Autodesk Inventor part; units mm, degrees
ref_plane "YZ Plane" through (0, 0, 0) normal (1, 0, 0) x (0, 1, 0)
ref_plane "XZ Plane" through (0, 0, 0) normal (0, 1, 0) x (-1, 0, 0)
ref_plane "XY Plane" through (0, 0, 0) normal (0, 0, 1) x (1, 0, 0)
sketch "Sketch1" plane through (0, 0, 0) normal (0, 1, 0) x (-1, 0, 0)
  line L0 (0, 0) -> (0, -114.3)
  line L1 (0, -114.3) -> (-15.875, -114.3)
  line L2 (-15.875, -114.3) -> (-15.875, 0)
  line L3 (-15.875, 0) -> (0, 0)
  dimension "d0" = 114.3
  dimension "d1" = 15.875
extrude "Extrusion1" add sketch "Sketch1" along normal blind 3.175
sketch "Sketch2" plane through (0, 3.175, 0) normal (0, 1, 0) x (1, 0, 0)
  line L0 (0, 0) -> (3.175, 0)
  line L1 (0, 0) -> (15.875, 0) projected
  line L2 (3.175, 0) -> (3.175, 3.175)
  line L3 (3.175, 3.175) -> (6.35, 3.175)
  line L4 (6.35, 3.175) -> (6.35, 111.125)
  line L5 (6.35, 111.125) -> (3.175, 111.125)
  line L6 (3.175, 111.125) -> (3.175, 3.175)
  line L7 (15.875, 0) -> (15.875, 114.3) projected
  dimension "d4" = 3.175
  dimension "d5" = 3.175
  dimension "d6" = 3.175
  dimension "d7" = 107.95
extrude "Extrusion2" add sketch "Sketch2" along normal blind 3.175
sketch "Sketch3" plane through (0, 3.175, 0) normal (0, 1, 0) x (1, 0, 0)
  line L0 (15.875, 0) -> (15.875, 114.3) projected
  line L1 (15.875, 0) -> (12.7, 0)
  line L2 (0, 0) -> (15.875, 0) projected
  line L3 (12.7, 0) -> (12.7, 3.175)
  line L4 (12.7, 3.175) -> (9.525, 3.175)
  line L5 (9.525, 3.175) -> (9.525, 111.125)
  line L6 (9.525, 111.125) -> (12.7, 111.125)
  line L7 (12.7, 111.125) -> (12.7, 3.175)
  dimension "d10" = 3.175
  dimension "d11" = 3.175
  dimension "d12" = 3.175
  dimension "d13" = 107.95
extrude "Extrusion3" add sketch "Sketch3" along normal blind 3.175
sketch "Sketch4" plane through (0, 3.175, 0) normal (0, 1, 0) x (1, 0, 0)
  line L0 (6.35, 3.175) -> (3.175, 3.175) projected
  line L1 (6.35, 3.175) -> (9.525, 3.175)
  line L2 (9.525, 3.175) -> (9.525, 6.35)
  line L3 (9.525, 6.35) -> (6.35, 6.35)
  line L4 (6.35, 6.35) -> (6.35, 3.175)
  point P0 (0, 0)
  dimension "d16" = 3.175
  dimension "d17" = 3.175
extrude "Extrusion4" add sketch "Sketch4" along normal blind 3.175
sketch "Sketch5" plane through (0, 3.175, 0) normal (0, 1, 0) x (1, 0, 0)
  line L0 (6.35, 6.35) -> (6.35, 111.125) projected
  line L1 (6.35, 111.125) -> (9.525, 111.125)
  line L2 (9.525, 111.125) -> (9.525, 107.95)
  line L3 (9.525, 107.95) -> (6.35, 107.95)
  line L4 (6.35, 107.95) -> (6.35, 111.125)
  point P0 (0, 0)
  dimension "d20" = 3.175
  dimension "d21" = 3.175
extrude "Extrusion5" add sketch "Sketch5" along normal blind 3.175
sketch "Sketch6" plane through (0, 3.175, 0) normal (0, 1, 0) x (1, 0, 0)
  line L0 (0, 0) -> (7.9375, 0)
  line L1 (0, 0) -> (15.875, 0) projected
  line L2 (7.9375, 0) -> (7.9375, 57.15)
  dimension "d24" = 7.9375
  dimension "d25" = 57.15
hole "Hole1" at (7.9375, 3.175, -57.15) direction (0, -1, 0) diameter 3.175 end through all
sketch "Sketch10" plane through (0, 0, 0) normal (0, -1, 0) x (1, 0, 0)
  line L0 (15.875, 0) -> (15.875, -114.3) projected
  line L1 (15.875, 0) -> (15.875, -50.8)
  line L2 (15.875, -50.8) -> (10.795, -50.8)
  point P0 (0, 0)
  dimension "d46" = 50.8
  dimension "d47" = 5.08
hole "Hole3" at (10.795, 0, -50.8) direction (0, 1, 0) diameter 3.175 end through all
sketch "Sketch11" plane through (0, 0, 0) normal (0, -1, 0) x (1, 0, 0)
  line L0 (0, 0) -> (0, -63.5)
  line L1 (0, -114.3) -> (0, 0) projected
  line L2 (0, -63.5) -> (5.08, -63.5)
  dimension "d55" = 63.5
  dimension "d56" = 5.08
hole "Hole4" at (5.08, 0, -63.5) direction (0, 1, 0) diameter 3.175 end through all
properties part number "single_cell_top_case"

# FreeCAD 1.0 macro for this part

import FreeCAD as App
import Part
import Sketcher
Q = App.Units.Quantity


def add_polygon(sketch, points):
    """Adds a closed chain of lines whose ends are joined by coincident constraints."""
    first, n = sketch.GeometryCount, len(points)
    for a, b in zip(points, points[1:] + points[:1]):
        sketch.addGeometry(Part.LineSegment(App.Vector(*a, 0), App.Vector(*b, 0)), False)
    for i in range(n):
        sketch.addConstraint(Sketcher.Constraint("Coincident", first + i, 2, first + (i + 1) % n, 1))

doc = App.newDocument("Part")
body = doc.addObject("PartDesign::Body", "Body")

sketch1 = body.newObject("Sketcher::SketchObject", "Sketch")
sketch1.AttachmentSupport = (doc.getObject("XZ_Plane"), [""])
sketch1.MapMode = "FlatFace"
add_polygon(sketch1, [(0, -114), (0, 0), (16, 0), (16, -114)])
sketch1.addConstraint([
    Sketcher.Constraint("Vertical", 0),
    Sketcher.Constraint("Horizontal", 1),
    Sketcher.Constraint("Vertical", 2),
    Sketcher.Constraint("Horizontal", 3),
    Sketcher.Constraint("Coincident", 0, 2, -1, 1),
    Sketcher.Constraint("DistanceY", 0, 1, 0, 2, Q("4.5 in")),
    Sketcher.Constraint("DistanceX", 1, 1, 1, 2, Q("0.625 in")),
])
pad1 = body.newObject("PartDesign::Pad", "Pad")
pad1.Profile = sketch1
pad1.Length = Q("0.125 in")
pad1.Reversed = True

sketch2 = body.newObject("Sketcher::SketchObject", "Sketch001")
sketch2.AttachmentSupport = (doc.getObject("XZ_Plane"), [""])
sketch2.MapMode = "FlatFace"
sketch2.AttachmentOffset = App.Placement(App.Vector(0, 0, -0.125 * 25.4), App.Rotation())
add_polygon(sketch2, [(3.2, -111.1), (3.2, -3.2), (6.3, -3.2), (6.3, -111.1)])
sketch2.addConstraint([
    Sketcher.Constraint("Vertical", 0),
    Sketcher.Constraint("Horizontal", 1),
    Sketcher.Constraint("Vertical", 2),
    Sketcher.Constraint("Horizontal", 3),
    Sketcher.Constraint("DistanceY", 0, 1, 0, 2, Q("4.25 in")),
    Sketcher.Constraint("DistanceX", 1, 1, 1, 2, Q("0.125 in")),
    Sketcher.Constraint("DistanceX", -1, 1, 0, 2, Q("0.125 in")),
    Sketcher.Constraint("DistanceY", 0, 2, -1, 1, Q("0.125 in")),
])
pad2 = body.newObject("PartDesign::Pad", "Pad001")
pad2.Profile = sketch2
pad2.Length = Q("0.125 in")
pad2.Reversed = True

sketch3 = body.newObject("Sketcher::SketchObject", "Sketch002")
sketch3.AttachmentSupport = (doc.getObject("XZ_Plane"), [""])
sketch3.MapMode = "FlatFace"
sketch3.AttachmentOffset = App.Placement(App.Vector(0, 0, -0.125 * 25.4), App.Rotation())
add_polygon(sketch3, [(9.5, -3.2), (12.7, -3.2), (12.7, -111.1), (9.5, -111.1)])
sketch3.addConstraint([
    Sketcher.Constraint("Horizontal", 0),
    Sketcher.Constraint("Vertical", 1),
    Sketcher.Constraint("Horizontal", 2),
    Sketcher.Constraint("Vertical", 3),
    Sketcher.Constraint("DistanceY", 1, 2, 1, 1, Q("4.25 in")),
    Sketcher.Constraint("DistanceX", 0, 1, 0, 2, Q("0.125 in")),
    Sketcher.Constraint("DistanceY", 0, 2, -1, 1, Q("0.125 in")),
    Sketcher.Constraint("DistanceX", -1, 1, 0, 2, Q("0.5 in")),
])
pad3 = body.newObject("PartDesign::Pad", "Pad002")
pad3.Profile = sketch3
pad3.Length = Q("0.125 in")
pad3.Reversed = True

sketch4 = body.newObject("Sketcher::SketchObject", "Sketch003")
sketch4.AttachmentSupport = (doc.getObject("XZ_Plane"), [""])
sketch4.MapMode = "FlatFace"
sketch4.AttachmentOffset = App.Placement(App.Vector(0, 0, -0.125 * 25.4), App.Rotation())
add_polygon(sketch4, [(6.3, -6.3), (6.3, -3.2), (9.5, -3.2), (9.5, -6.3)])
sketch4.addConstraint([
    Sketcher.Constraint("Vertical", 0),
    Sketcher.Constraint("Horizontal", 1),
    Sketcher.Constraint("Vertical", 2),
    Sketcher.Constraint("Horizontal", 3),
    Sketcher.Constraint("Equal", 3, 0),
    Sketcher.Constraint("DistanceX", 1, 1, 1, 2, Q("0.125 in")),
    Sketcher.Constraint("DistanceY", 0, 2, -1, 1, Q("0.125 in")),
    Sketcher.Constraint("DistanceX", -1, 1, 0, 2, Q("0.25 in")),
])
pad4 = body.newObject("PartDesign::Pad", "Pad003")
pad4.Profile = sketch4
pad4.Length = Q("0.125 in")
pad4.Reversed = True

sketch5 = body.newObject("Sketcher::SketchObject", "Sketch004")
sketch5.AttachmentSupport = (doc.getObject("XZ_Plane"), [""])
sketch5.MapMode = "FlatFace"
sketch5.AttachmentOffset = App.Placement(App.Vector(0, 0, -0.125 * 25.4), App.Rotation())
add_polygon(sketch5, [(6.3, -111.1), (6.3, -108), (9.5, -108), (9.5, -111.1)])
sketch5.addConstraint([
    Sketcher.Constraint("Vertical", 0),
    Sketcher.Constraint("Horizontal", 1),
    Sketcher.Constraint("Vertical", 2),
    Sketcher.Constraint("Horizontal", 3),
    Sketcher.Constraint("Equal", 3, 0),
    Sketcher.Constraint("DistanceX", 1, 1, 1, 2, Q("0.125 in")),
    Sketcher.Constraint("DistanceX", -1, 1, 0, 2, Q("0.25 in")),
    Sketcher.Constraint("DistanceY", 0, 2, -1, 1, Q("4.25 in")),
])
pad5 = body.newObject("PartDesign::Pad", "Pad004")
pad5.Profile = sketch5
pad5.Length = Q("0.125 in")
pad5.Reversed = True

sketch6 = body.newObject("Sketcher::SketchObject", "Sketch005")
sketch6.AttachmentSupport = (doc.getObject("XZ_Plane"), [""])
sketch6.MapMode = "FlatFace"
sketch6.AttachmentOffset = App.Placement(App.Vector(0, 0, -0.125 * 25.4), App.Rotation())
sketch6.addGeometry(Part.Circle(App.Vector(7.9, -57.1, 0), App.Vector(0, 0, 1), 1.6), False)
sketch6.addConstraint([
    Sketcher.Constraint("Diameter", 0, Q("0.125 in")),
    Sketcher.Constraint("DistanceY", 0, 3, -1, 1, Q("2.25 in")),
    Sketcher.Constraint("DistanceX", -1, 1, 0, 3, Q("0.3125 in")),
])
doc.recompute()
hole = body.newObject("PartDesign::Hole", "Hole")
hole.Profile = sketch6
hole.ThreadType = "None"
hole.Diameter = Q("0.125 in")
hole.DepthType = "ThroughAll"
hole.Reversed = True

sketch7 = body.newObject("Sketcher::SketchObject", "Sketch006")
sketch7.AttachmentSupport = (doc.getObject("XZ_Plane"), [""])
sketch7.MapMode = "FlatFace"
sketch7.addGeometry(Part.Circle(App.Vector(10.8, -50.8, 0), App.Vector(0, 0, 1), 1.6), False)
sketch7.addConstraint([
    Sketcher.Constraint("Diameter", 0, Q("0.125 in")),
    Sketcher.Constraint("DistanceY", 0, 3, -1, 1, Q("2 in")),
    Sketcher.Constraint("DistanceX", -1, 1, 0, 3, Q("0.425 in")),
])
doc.recompute()
hole2 = body.newObject("PartDesign::Hole", "Hole001")
hole2.Profile = sketch7
hole2.ThreadType = "None"
hole2.Diameter = Q("0.125 in")
hole2.DepthType = "ThroughAll"

sketch8 = body.newObject("Sketcher::SketchObject", "Sketch007")
sketch8.AttachmentSupport = (doc.getObject("XZ_Plane"), [""])
sketch8.MapMode = "FlatFace"
sketch8.addGeometry(Part.Circle(App.Vector(5.1, -63.5, 0), App.Vector(0, 0, 1), 1.6), False)
sketch8.addConstraint([
    Sketcher.Constraint("Diameter", 0, Q("0.125 in")),
    Sketcher.Constraint("DistanceX", -1, 1, 0, 3, Q("0.2 in")),
    Sketcher.Constraint("DistanceY", 0, 3, -1, 1, Q("2.5 in")),
])
doc.recompute()
hole3 = body.newObject("PartDesign::Hole", "Hole002")
hole3.Profile = sketch8
hole3.ThreadType = "None"
hole3.Diameter = Q("0.125 in")
hole3.DepthType = "ThroughAll"

doc.recompute()
